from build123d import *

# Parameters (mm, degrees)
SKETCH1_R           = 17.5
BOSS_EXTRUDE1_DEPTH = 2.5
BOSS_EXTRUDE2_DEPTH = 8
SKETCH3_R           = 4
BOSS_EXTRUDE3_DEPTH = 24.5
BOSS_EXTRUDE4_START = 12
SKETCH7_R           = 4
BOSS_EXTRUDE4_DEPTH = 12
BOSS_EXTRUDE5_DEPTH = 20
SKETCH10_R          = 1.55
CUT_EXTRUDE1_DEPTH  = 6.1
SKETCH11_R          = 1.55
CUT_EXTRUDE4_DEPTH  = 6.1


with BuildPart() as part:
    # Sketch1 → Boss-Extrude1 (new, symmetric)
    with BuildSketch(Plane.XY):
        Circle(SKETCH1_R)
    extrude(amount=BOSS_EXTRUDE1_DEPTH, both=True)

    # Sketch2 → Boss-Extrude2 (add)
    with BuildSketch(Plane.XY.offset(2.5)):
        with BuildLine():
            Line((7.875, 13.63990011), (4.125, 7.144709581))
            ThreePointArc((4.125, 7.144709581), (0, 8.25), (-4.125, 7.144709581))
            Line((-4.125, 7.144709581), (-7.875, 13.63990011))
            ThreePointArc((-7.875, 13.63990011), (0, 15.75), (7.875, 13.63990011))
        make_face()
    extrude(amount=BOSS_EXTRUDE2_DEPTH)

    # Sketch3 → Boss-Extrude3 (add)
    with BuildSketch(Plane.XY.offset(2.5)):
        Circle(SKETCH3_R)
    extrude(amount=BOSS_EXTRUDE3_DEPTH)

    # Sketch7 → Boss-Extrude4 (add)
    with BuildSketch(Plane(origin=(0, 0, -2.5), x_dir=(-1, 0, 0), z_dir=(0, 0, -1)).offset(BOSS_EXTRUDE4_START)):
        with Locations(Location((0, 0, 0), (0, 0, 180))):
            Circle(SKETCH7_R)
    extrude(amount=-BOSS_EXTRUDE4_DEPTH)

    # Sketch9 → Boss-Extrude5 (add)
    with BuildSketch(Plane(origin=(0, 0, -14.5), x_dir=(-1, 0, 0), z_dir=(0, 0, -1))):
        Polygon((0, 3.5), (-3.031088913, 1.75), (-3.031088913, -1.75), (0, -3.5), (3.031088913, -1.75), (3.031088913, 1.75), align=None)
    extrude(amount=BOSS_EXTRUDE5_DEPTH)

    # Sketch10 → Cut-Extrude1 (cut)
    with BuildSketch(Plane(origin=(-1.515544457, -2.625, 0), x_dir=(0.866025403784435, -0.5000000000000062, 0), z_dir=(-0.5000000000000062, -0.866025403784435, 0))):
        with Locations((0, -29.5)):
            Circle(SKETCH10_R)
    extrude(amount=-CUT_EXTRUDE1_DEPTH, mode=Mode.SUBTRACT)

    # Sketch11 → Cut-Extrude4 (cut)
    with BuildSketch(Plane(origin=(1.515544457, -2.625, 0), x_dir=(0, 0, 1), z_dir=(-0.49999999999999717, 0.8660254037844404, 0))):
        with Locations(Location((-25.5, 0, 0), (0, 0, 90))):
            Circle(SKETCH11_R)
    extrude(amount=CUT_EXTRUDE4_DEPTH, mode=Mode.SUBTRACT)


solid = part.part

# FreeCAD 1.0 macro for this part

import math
import FreeCAD as App
import Part
import Sketcher
from FreeCAD import Vector
Q = App.Units.Quantity


def add_polygon(sketch, points):
    """Adds a closed chain of lines whose ends are joined by coincident constraints."""
    first, n = sketch.GeometryCount, len(points)
    for a, b in zip(points, points[1:] + points[:1]):
        sketch.addGeometry(Part.LineSegment(App.Vector(*a, 0), App.Vector(*b, 0)), False)
    for i in range(n):
        sketch.addConstraint(Sketcher.Constraint("Coincident", first + i, 2, first + (i + 1) % n, 1))

doc = App.newDocument("Part")
body = doc.addObject("PartDesign::Body", "Body")

# Sketch on XY plane
sketch1 = doc.addObject("Sketcher::SketchObject", "Sketch")
body.addObject(sketch1)
sketch1.AttachmentSupport = (doc.XY_Plane, [""])
sketch1.MapMode = "FlatFace"
sketch1.addGeometry(Part.Circle(Vector(0, 0, 0), Vector(0, 0, 1), 17.5), False)
sketch1.addConstraint([
    Sketcher.Constraint("Coincident", 0, 3, -1, 1),
    Sketcher.Constraint("Diameter", 0, Q("35 mm")),
])
pad1 = doc.addObject("PartDesign::Pad", "Pad")
body.addObject(pad1)
pad1.Profile = sketch1
pad1.Length = 5
pad1.Midplane = True

# Sketch on XY plane
sketch2 = doc.addObject("Sketcher::SketchObject", "Sketch001")
body.addObject(sketch2)
sketch2.AttachmentSupport = (doc.XY_Plane, [""])
sketch2.MapMode = "FlatFace"
sketch2.AttachmentOffset = App.Placement(Vector(0, 0, 2.5), App.Rotation())
sketch2.addGeometry([
    Part.LineSegment(Vector(4.125, 7.14471, 0), Vector(7.875, 13.6399, 0)),
    Part.ArcOfCircle(Part.Circle(Vector(0, 0, 0), Vector(0, 0, 1), 15.75), math.radians(60), math.radians(120)),
    Part.LineSegment(Vector(-7.875, 13.6399, 0), Vector(-4.125, 7.14471, 0)),
    Part.ArcOfCircle(Part.Circle(Vector(0, 0, 0), Vector(0, 0, 1), 8.25), math.radians(60), math.radians(120)),
], False)
sketch2.addConstraint([
    Sketcher.Constraint("Coincident", 0, 2, 1, 1),
    Sketcher.Constraint("Coincident", 1, 2, 2, 1),
    Sketcher.Constraint("Coincident", 2, 2, 3, 2),
    Sketcher.Constraint("Coincident", 3, 1, 0, 1),
    Sketcher.Constraint("Coincident", 1, 3, -1, 1),
    Sketcher.Constraint("Coincident", 3, 3, -1, 1),
    Sketcher.Constraint("Horizontal", 0, 2, 1, 2),
    Sketcher.Constraint("Horizontal", 2, 2, 3, 1),
    Sketcher.Constraint("Angle", 0, Q("60 deg")),
    Sketcher.Constraint("Radius", 1, Q("15.75 mm")),
    Sketcher.Constraint("Radius", 3, Q("8.25 mm")),
    Sketcher.Constraint("DistanceX", 2, 2, 0, 2, Q("12 mm")),
])
pad2 = doc.addObject("PartDesign::Pad", "Pad001")
body.addObject(pad2)
pad2.Profile = sketch2
pad2.Length = 8

# Sketch on XY plane
sketch3 = doc.addObject("Sketcher::SketchObject", "Sketch002")
body.addObject(sketch3)
sketch3.AttachmentSupport = (doc.XY_Plane, [""])
sketch3.MapMode = "FlatFace"
sketch3.AttachmentOffset = App.Placement(Vector(0, 0, 2.5), App.Rotation())
sketch3.addGeometry(Part.Circle(Vector(0, 0, 0), Vector(0, 0, 1), 4), False)
sketch3.addConstraint([
    Sketcher.Constraint("Coincident", 0, 3, -1, 1),
    Sketcher.Constraint("Diameter", 0, Q("8 mm")),
])
pad3 = doc.addObject("PartDesign::Pad", "Pad002")
body.addObject(pad3)
pad3.Profile = sketch3
pad3.Length = 24.5

# Sketch on XY plane
sketch4 = doc.addObject("Sketcher::SketchObject", "Sketch003")
body.addObject(sketch4)
sketch4.AttachmentSupport = (doc.XY_Plane, [""])
sketch4.MapMode = "FlatFace"
sketch4.AttachmentOffset = App.Placement(Vector(0, 0, -14.5), App.Rotation())
sketch4.addGeometry(Part.Circle(Vector(0, 0, 0), Vector(0, 0, 1), 4), False)
sketch4.addConstraint([
    Sketcher.Constraint("Coincident", 0, 3, -1, 1),
    Sketcher.Constraint("Diameter", 0, Q("8 mm")),
])
pad4 = doc.addObject("PartDesign::Pad", "Pad003")
body.addObject(pad4)
pad4.Profile = sketch4
pad4.Length = 12

# Sketch on XY plane
sketch5 = doc.addObject("Sketcher::SketchObject", "Sketch004")
body.addObject(sketch5)
sketch5.AttachmentSupport = (doc.XY_Plane, [""])
sketch5.MapMode = "FlatFace"
sketch5.AttachmentOffset = App.Placement(Vector(0, 0, -14.5), App.Rotation())
add_polygon(sketch5, [(0, 3.5), (3.031089, 1.75), (3.031089, -1.75), (0, -3.5), (-3.031089, -1.75), (-3.031089, 1.75)])  # lines 0-5
sketch5.addConstraint([
    Sketcher.Constraint("Vertical", 1),
    Sketcher.Constraint("Vertical", 4),
    Sketcher.Constraint("Symmetric", 0, 2, 3, 2, -1, 1),
    Sketcher.Constraint("Symmetric", 2, 2, 5, 2, -1, 1),
    Sketcher.Constraint("PointOnObject", 2, 2, -2),
    Sketcher.Constraint("Parallel", 2, 5),
    Sketcher.Constraint("Horizontal", 1, 2, 3, 2),
    Sketcher.Constraint("Angle", 0, Q("-30 deg")),
    Sketcher.Constraint("DistanceY", 1, 2, 1, 1, Q("3.5 mm")),
    Sketcher.Constraint("DistanceY", 2, 2, 5, 2, Q("7 mm")),
])
pad5 = doc.addObject("PartDesign::Pad", "Pad004")
body.addObject(pad5)
pad5.Profile = sketch5
pad5.Length = 20
pad5.Reversed = True

# Sketch on an angled plane
sketch6 = doc.addObject("Sketcher::SketchObject", "Sketch005")
body.addObject(sketch6)
sketch6.Placement = App.Placement(Vector(-1.515544, -2.625, 0), App.Rotation(Vector(0.866025404, -0.5, 0), Vector(0, 0, 1), Vector(-0.5, -0.866025404, 0), "ZXY"))
sketch6.addGeometry(Part.Circle(Vector(0, -29.5, 0), Vector(0, 0, 1), 1.55), False)
sketch6.addConstraint([
    Sketcher.Constraint("PointOnObject", 0, 3, -2),
    Sketcher.Constraint("Diameter", 0, Q("3.1 mm")),
    Sketcher.Constraint("DistanceY", 0, 3, -1, 1, Q("29.5 mm")),
])
pocket1 = doc.addObject("PartDesign::Pocket", "Pocket")
body.addObject(pocket1)
pocket1.Profile = sketch6
pocket1.Length = 6.1

# Sketch on an angled plane
sketch7 = doc.addObject("Sketcher::SketchObject", "Sketch006")
body.addObject(sketch7)
sketch7.Placement = App.Placement(Vector(1.515544, -2.625, 0), App.Rotation(Vector(0, 0, 1), Vector(0.866025404, 0.5, 0), Vector(-0.5, 0.866025404, 0), "ZXY"))
sketch7.addGeometry(Part.Circle(Vector(-25.5, 0, 0), Vector(0, 0, 1), 1.55), False)
sketch7.addConstraint([
    Sketcher.Constraint("PointOnObject", 0, 3, -1),
    Sketcher.Constraint("Diameter", 0, Q("3.1 mm")),
    Sketcher.Constraint("DistanceX", 0, 3, -1, 1, Q("25.5 mm")),
])
pocket2 = doc.addObject("PartDesign::Pocket", "Pocket001")
body.addObject(pocket2)
pocket2.Profile = sketch7
pocket2.Length = 6.1
pocket2.Reversed = True

doc.recompute()
